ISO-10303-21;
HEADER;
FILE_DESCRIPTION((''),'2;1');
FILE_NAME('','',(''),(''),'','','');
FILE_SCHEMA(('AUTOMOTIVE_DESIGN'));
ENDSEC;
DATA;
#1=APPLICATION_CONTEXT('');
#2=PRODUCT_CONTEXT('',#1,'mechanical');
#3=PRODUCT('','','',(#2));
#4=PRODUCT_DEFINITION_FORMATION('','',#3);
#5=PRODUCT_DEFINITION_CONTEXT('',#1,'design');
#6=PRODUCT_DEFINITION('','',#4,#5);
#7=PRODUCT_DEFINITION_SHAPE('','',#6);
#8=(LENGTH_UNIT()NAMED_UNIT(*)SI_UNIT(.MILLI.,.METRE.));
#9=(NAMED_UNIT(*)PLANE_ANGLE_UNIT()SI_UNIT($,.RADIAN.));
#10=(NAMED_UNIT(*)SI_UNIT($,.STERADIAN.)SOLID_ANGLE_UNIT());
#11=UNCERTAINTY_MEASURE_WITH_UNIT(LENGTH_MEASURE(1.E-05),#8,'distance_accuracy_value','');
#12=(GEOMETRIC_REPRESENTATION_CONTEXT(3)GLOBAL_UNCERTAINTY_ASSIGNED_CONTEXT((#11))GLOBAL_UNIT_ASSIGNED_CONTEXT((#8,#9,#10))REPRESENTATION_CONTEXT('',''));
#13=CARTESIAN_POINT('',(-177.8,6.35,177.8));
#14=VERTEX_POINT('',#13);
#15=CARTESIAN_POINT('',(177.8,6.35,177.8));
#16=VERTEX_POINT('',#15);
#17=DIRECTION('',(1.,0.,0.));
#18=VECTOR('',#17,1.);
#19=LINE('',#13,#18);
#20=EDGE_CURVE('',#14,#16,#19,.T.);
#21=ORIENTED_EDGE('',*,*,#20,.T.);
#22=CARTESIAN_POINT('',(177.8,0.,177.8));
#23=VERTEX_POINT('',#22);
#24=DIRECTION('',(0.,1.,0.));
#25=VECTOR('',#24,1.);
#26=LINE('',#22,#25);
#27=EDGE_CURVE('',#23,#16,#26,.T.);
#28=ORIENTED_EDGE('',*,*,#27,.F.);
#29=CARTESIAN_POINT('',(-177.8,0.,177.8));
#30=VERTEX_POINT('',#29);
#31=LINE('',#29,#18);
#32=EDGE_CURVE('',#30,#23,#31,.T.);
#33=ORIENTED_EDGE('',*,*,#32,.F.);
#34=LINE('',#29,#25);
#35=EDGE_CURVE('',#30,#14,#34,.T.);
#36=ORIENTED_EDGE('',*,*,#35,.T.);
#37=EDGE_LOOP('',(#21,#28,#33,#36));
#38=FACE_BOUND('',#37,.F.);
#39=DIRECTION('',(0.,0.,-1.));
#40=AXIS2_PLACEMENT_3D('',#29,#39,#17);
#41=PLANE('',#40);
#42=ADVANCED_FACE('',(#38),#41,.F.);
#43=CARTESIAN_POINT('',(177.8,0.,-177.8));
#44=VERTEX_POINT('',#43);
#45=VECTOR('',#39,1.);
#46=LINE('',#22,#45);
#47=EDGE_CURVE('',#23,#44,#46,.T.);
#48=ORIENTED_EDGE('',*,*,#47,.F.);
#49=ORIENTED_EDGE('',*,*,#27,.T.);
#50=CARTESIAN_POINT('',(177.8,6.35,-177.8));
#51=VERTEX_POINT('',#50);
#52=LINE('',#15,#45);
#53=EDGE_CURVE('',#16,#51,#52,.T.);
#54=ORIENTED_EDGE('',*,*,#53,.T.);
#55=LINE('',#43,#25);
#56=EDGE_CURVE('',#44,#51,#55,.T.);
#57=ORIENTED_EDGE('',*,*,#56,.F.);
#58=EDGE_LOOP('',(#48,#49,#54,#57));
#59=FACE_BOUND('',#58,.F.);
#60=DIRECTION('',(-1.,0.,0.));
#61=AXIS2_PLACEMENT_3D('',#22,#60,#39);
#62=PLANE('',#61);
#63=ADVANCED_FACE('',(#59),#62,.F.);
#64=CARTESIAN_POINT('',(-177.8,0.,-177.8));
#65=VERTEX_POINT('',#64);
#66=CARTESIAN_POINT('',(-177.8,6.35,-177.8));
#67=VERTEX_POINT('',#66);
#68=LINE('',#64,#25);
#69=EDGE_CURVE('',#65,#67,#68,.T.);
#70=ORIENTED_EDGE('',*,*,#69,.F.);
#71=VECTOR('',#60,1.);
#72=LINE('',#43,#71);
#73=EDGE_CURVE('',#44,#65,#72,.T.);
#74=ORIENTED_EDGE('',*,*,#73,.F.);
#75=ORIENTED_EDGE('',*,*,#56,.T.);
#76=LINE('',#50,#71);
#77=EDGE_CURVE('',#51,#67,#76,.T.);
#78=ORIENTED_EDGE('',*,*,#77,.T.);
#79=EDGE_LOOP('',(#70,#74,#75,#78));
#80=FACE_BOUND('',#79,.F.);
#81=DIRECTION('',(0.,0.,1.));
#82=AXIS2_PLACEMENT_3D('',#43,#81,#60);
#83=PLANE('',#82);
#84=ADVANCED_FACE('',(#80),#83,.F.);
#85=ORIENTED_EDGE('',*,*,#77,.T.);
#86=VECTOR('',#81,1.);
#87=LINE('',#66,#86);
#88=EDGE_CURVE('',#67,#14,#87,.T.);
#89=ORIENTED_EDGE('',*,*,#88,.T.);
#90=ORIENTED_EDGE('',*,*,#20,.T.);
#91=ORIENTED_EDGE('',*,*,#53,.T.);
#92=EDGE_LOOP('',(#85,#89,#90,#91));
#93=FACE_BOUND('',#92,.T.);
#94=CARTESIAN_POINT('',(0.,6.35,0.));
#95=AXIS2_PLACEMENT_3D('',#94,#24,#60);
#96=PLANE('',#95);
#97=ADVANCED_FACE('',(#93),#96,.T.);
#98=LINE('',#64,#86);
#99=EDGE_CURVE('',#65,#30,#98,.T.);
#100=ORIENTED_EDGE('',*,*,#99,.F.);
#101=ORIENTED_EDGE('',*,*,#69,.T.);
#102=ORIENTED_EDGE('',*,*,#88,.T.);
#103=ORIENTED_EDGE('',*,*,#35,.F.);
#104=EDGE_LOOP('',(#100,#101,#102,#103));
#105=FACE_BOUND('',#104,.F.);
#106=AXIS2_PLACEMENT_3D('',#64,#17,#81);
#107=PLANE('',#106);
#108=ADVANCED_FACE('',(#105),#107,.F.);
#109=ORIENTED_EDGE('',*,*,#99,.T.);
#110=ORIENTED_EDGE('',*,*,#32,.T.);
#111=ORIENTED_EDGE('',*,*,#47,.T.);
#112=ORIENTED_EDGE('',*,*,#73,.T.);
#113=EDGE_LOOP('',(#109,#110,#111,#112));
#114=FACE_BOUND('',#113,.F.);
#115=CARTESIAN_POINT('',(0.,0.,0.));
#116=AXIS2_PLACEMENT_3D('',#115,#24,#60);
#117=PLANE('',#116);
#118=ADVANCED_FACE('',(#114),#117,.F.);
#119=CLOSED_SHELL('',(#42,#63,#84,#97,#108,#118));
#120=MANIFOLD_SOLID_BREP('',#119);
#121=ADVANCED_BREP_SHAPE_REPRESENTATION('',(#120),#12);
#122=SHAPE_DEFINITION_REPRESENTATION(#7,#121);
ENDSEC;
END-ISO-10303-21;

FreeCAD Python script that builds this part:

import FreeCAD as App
import Part
import Sketcher
from FreeCAD import Vector
Q = App.Units.Quantity

doc = App.newDocument("Part")
body = doc.addObject("PartDesign::Body", "Body")

sketch1 = body.newObject("Sketcher::SketchObject", "Sketch")
sketch1.AttachmentSupport = (doc.getObject("XZ_Plane"), [""])
sketch1.MapMode = "FlatFace"
sketch1.addGeometry([
    Part.LineSegment(Vector(-178, -178, 0), Vector(-178, 178, 0)),
    Part.LineSegment(Vector(-178, 178, 0), Vector(178, 178, 0)),
    Part.LineSegment(Vector(178, 178, 0), Vector(178, -178, 0)),
    Part.LineSegment(Vector(178, -178, 0), Vector(-178, -178, 0)),
], False)
sketch1.addConstraint([
    Sketcher.Constraint("Coincident", 0, 2, 1, 1),
    Sketcher.Constraint("Coincident", 1, 2, 2, 1),
    Sketcher.Constraint("Coincident", 2, 2, 3, 1),
    Sketcher.Constraint("Coincident", 3, 2, 0, 1),
    Sketcher.Constraint("Vertical", 0),
    Sketcher.Constraint("Horizontal", 1),
    Sketcher.Constraint("Vertical", 2),
    Sketcher.Constraint("Horizontal", 3),
    Sketcher.Constraint("Symmetric", 0, 2, 2, 2, -1, 1),
    Sketcher.Constraint("Equal", 3, 0),
    Sketcher.Constraint("DistanceX", 1, 1, 1, 2, Q("14 in")),
])
pad1 = body.newObject("PartDesign::Pad", "Pad")
pad1.Profile = sketch1
pad1.Length = Q("0.25 in")
pad1.Reversed = True

doc.recompute()
